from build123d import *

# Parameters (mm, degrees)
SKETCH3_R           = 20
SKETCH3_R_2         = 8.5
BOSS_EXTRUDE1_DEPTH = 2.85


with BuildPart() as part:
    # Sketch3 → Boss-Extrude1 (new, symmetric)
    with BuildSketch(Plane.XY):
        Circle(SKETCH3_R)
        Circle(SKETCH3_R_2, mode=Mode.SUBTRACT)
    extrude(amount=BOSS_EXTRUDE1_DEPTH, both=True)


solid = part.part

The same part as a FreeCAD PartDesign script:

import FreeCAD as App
import Part
import Sketcher

V = App.Vector

doc = App.newDocument("Part")
body = doc.addObject("PartDesign::Body", "Body")

sketch1 = body.newObject("Sketcher::SketchObject", "Sketch")
sketch1.AttachmentSupport = (doc.getObject("XY_Plane"), [""])
sketch1.MapMode = "FlatFace"
sketch1.addGeometry([
    Part.Circle(V(0, 0, 0), V(0, 0, 1), 20),
    Part.Circle(V(0, 0, 0), V(0, 0, 1), 8),
], False)
sketch1.addConstraint([
    Sketcher.Constraint("Coincident", 0, 3, -1, 1),
    Sketcher.Constraint("Coincident", 1, 3, -1, 1),
    Sketcher.Constraint("Diameter", 0, 40.0),
    Sketcher.Constraint("Diameter", 1, 17.0),
])
pad1 = body.newObject("PartDesign::Pad", "Pad")
pad1.Profile = sketch1
pad1.Length = 5.7
pad1.Midplane = True

doc.recompute()
